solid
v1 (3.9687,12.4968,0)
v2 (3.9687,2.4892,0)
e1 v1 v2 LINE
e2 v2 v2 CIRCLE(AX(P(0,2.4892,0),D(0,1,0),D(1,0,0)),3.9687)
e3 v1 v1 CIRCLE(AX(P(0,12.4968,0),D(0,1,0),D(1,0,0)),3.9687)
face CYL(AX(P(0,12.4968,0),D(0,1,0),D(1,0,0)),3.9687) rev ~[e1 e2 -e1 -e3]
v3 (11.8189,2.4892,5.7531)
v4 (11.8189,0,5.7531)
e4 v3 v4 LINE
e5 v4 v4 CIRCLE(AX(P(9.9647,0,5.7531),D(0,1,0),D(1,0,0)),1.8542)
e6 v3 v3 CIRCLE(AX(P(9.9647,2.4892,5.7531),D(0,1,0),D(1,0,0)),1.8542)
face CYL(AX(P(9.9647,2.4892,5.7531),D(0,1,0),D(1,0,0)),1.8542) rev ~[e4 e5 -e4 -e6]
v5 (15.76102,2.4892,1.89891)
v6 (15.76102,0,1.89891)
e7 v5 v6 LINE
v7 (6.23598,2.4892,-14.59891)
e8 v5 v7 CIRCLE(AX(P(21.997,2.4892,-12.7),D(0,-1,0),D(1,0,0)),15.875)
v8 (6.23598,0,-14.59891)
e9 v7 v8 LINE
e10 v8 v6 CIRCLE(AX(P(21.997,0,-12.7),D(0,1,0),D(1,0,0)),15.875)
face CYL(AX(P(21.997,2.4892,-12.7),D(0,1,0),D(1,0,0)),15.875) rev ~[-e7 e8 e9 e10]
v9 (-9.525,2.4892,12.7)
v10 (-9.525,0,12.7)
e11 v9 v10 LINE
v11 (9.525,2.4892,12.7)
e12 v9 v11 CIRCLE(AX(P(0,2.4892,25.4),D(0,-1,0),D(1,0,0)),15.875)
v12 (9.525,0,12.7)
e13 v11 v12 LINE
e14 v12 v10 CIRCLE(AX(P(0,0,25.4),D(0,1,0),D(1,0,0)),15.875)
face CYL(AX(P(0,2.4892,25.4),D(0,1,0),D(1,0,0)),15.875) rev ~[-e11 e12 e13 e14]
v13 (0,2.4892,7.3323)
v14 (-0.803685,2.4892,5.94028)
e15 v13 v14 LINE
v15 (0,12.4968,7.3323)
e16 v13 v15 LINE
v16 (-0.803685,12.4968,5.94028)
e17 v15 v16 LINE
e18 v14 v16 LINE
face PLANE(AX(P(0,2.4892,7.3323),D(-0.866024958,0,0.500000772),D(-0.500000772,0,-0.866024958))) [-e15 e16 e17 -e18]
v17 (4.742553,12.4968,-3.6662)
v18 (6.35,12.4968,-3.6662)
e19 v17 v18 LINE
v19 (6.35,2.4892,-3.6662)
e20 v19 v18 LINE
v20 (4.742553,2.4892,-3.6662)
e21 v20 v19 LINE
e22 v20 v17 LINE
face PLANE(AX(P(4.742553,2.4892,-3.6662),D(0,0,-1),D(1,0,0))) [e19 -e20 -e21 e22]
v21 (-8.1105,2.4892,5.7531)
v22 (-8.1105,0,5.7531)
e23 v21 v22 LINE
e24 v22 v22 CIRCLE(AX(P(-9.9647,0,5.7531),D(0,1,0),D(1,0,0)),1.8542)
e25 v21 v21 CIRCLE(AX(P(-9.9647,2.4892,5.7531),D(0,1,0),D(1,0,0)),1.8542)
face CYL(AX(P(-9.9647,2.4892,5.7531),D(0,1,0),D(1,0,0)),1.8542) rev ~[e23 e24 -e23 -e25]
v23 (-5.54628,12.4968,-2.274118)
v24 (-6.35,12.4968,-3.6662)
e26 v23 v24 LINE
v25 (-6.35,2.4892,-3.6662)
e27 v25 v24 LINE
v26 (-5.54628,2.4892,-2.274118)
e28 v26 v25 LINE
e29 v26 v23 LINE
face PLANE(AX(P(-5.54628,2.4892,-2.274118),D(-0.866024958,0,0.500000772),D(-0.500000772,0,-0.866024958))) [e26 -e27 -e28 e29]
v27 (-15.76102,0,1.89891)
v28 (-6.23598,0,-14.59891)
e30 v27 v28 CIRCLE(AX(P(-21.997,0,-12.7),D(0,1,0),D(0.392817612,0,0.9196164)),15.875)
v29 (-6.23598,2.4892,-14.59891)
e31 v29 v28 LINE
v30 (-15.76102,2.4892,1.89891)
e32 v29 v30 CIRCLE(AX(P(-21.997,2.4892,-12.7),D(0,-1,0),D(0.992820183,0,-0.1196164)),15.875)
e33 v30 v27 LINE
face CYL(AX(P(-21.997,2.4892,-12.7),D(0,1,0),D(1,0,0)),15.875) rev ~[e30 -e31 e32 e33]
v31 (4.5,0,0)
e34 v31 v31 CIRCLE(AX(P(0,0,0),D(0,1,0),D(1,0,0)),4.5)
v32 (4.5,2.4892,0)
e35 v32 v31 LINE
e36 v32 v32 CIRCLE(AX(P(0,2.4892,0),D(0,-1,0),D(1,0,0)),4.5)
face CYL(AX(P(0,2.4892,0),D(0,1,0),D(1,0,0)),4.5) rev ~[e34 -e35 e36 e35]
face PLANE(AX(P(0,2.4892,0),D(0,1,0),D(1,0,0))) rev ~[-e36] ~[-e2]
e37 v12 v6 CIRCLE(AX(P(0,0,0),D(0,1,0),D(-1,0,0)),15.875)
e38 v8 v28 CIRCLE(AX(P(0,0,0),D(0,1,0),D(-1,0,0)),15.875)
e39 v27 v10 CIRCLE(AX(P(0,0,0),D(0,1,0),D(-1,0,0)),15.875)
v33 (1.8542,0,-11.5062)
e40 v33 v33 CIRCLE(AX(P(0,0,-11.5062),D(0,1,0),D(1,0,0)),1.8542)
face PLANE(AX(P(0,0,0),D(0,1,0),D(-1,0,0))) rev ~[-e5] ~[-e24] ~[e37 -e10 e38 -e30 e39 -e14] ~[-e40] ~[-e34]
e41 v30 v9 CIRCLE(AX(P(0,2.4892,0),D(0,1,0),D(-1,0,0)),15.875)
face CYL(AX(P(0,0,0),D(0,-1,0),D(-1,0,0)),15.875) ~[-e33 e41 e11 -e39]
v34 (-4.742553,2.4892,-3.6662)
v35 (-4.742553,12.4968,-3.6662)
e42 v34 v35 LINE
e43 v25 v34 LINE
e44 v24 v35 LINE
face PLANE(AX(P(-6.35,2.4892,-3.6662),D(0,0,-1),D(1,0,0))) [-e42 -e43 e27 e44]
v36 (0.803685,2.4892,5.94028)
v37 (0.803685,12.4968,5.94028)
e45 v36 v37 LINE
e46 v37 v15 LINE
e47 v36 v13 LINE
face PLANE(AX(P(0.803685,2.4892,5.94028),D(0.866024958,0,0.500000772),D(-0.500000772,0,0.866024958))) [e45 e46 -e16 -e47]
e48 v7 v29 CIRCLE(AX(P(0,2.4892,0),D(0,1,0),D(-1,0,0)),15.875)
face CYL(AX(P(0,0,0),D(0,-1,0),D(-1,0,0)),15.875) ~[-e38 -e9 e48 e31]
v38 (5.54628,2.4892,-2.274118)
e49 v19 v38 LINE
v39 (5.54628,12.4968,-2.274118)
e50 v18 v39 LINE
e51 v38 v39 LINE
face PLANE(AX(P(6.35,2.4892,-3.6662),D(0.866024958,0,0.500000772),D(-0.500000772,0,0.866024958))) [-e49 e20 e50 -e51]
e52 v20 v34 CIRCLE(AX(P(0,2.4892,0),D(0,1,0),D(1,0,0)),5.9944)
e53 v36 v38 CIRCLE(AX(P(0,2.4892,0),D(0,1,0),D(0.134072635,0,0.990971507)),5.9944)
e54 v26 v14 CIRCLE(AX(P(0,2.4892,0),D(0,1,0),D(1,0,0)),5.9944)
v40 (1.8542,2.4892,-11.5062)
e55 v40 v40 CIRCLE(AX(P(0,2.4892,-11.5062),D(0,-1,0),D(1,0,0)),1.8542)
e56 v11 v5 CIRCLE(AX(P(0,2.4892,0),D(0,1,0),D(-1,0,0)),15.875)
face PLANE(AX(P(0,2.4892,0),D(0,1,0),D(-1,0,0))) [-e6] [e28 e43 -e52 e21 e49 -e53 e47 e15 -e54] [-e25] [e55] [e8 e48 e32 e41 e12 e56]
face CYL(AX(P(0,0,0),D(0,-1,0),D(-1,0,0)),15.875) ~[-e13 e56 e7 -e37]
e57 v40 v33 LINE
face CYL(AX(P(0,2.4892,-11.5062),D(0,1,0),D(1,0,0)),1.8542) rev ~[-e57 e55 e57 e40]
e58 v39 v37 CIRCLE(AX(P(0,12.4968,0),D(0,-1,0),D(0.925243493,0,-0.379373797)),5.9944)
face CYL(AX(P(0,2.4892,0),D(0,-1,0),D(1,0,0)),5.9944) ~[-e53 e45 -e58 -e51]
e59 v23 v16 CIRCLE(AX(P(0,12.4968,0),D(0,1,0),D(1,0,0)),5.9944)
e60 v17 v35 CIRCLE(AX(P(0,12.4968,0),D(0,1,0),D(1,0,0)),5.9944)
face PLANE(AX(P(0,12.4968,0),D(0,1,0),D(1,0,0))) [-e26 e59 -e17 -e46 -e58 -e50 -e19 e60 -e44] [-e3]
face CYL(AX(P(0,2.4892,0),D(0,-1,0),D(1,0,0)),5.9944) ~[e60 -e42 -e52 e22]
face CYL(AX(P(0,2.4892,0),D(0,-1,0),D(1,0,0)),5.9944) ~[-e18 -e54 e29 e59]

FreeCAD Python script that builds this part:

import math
import FreeCAD as App
import Part
import Sketcher

V = App.Vector
Q = App.Units.Quantity

doc = App.newDocument("Part")
params = doc.addObject("Spreadsheet::Sheet", "Params")
for row, (alias, value) in enumerate([
    ("sketch1_diameter", "1.25 in"),
    ("pad1_length", "0.098 in"),
    ("sketch2_diameter", "1.25 in"),
    ("sketch3_diameter", "0.146 in"),
    ("sketch4_radius", "0.236 in"),
    ("pad2_length", "0.394 in"),
    ("sketch5_diameter", "0.3125 in"),
], start=1):
    params.set(f"A{row}", alias)
    params.set(f"B{row}", "=" + value)
    params.setAlias(f"B{row}", alias)

body = doc.addObject("PartDesign::Body", "Body")

sketch1 = body.newObject("Sketcher::SketchObject", "Sketch")
sketch1.AttachmentSupport = (doc.getObject("XZ_Plane"), [""])
sketch1.MapMode = "FlatFace"
sketch1.addGeometry(Part.Circle(V(0, 0, 0), V(0, 0, 1), 15.875), False)
sketch1.addConstraint(Sketcher.Constraint("Coincident", 0, 3, -1, 1))
sketch1.addConstraint(Sketcher.Constraint("Diameter", 0, Q("1.25 in")))
sketch1.setExpression("Constraints[1]", "Params.sketch1_diameter")
pad1 = body.newObject("PartDesign::Pad", "Pad")
pad1.Profile = sketch1
pad1.setExpression("Length", "Params.pad1_length")
pad1.Reversed = True

sketch2 = body.newObject("Sketcher::SketchObject", "Sketch001")
sketch2.AttachmentSupport = (doc.getObject("XZ_Plane"), [""])
sketch2.MapMode = "FlatFace"
sketch2.AttachmentOffset = App.Placement(V(0, 0, -0.098 * 25.4), App.Rotation())
sketch2.addGeometry(Part.Circle(V(21.997, -12.7, 0), V(0, 0, 1), 15.875), False)
sketch2.addGeometry(Part.Circle(V(0, 25.4, 0), V(0, 0, 1), 15.875), False)
sketch2.addGeometry(Part.Circle(V(-21.997, -12.7, 0), V(0, 0, 1), 15.875), False)
sketch2.addConstraint(Sketcher.Constraint("Equal", 0, 1))
sketch2.addConstraint(Sketcher.Constraint("Equal", 1, 2))
sketch2.addConstraint(Sketcher.Constraint("Symmetric", 0, 3, 2, 3, -2))
sketch2.addConstraint(Sketcher.Constraint("PointOnObject", 1, 3, -2))
sketch2.addConstraint(Sketcher.Constraint("Diameter", 0, Q("1.25 in")))
sketch2.addConstraint(Sketcher.Constraint("DistanceY", -1, 1, 1, 3, Q("1 in")))
sketch2.addConstraint(Sketcher.Constraint("DistanceY", 0, 3, -1, 1, Q("0.5 in")))
sketch2.addConstraint(Sketcher.Constraint("DistanceX", -1, 1, 0, 3, 21.997))
sketch2.setExpression("Constraints[4]", "Params.sketch2_diameter")
pocket1 = body.newObject("PartDesign::Pocket", "Pocket")
pocket1.Profile = sketch2
pocket1.Type = "ThroughAll"
pocket1.Reversed = True

sketch3 = body.newObject("Sketcher::SketchObject", "Sketch002")
sketch3.AttachmentSupport = (doc.getObject("XZ_Plane"), [""])
sketch3.MapMode = "FlatFace"
sketch3.AttachmentOffset = App.Placement(V(0, 0, -0.098 * 25.4), App.Rotation())
sketch3.addGeometry(Part.Circle(V(0, -11.5062, 0), V(0, 0, 1), 1.8542), False)
sketch3.addGeometry(Part.Circle(V(0, 0, 0), V(0, 0, 1), 4.5), False)
sketch3.addGeometry(Part.Circle(V(-9.9647, 5.7531, 0), V(0, 0, 1), 1.8542), False)
sketch3.addGeometry(Part.Circle(V(9.9647, 5.7531, 0), V(0, 0, 1), 1.8542), False)
sketch3.addConstraint(Sketcher.Constraint("Coincident", 1, 3, -1, 1))
sketch3.addConstraint(Sketcher.Constraint("Equal", 0, 2))
sketch3.addConstraint(Sketcher.Constraint("Equal", 2, 3))
sketch3.addConstraint(Sketcher.Constraint("Symmetric", 2, 3, 3, 3, -2))
sketch3.addConstraint(Sketcher.Constraint("PointOnObject", 0, 3, -2))
sketch3.addConstraint(Sketcher.Constraint("Diameter", 0, Q("0.146 in")))
sketch3.addConstraint(Sketcher.Constraint("Diameter", 1, 9.0))
sketch3.addConstraint(Sketcher.Constraint("DistanceY", 0, 3, -1, 1, Q("0.453 in")))
sketch3.addConstraint(Sketcher.Constraint("DistanceX", 2, 3, -1, 1, Q("0.3923 in")))
sketch3.addConstraint(Sketcher.Constraint("DistanceY", -1, 1, 2, 3, Q("0.2265 in")))
sketch3.setExpression("Constraints[5]", "Params.sketch3_diameter")
pocket2 = body.newObject("PartDesign::Pocket", "Pocket001")
pocket2.Profile = sketch3
pocket2.Type = "ThroughAll"
pocket2.Reversed = True

sketch4 = body.newObject("Sketcher::SketchObject", "Sketch003")
sketch4.AttachmentSupport = (doc.getObject("XZ_Plane"), [""])
sketch4.MapMode = "FlatFace"
sketch4.AttachmentOffset = App.Placement(V(0, 0, -0.098 * 25.4), App.Rotation())
sketch4.addGeometry(Part.ArcOfCircle(Part.Circle(V(0, 0, 0), V(0, 0, 1), 5.9944), math.radians(-22.2949), math.radians(82.295002)), False)
sketch4.addGeometry(Part.LineSegment(V(5.54628, -2.274118, 0), V(6.35, -3.6662, 0)), False)
sketch4.addGeometry(Part.LineSegment(V(6.35, -3.6662, 0), V(4.742553, -3.6662, 0)), False)
sketch4.addGeometry(Part.ArcOfCircle(Part.Circle(V(0, 0, 0), V(0, 0, 1), 5.9944), math.radians(-142.294415), math.radians(-37.705585)), False)
sketch4.addGeometry(Part.LineSegment(V(-4.742553, -3.6662, 0), V(-6.35, -3.6662, 0)), False)
sketch4.addGeometry(Part.LineSegment(V(-6.35, -3.6662, 0), V(-5.54628, -2.274118, 0)), False)
sketch4.addGeometry(Part.ArcOfCircle(Part.Circle(V(0, 0, 0), V(0, 0, 1), 5.9944), math.radians(97.704998), math.radians(202.2949)), False)
sketch4.addGeometry(Part.LineSegment(V(-0.803685, 5.94028, 0), V(0, 7.3323, 0)), False)
sketch4.addGeometry(Part.LineSegment(V(0, 7.3323, 0), V(0.803685, 5.94028, 0)), False)
sketch4.addConstraint(Sketcher.Constraint("Coincident", 0, 1, 1, 1))
sketch4.addConstraint(Sketcher.Constraint("Coincident", 1, 2, 2, 1))
sketch4.addConstraint(Sketcher.Constraint("Coincident", 2, 2, 3, 2))
sketch4.addConstraint(Sketcher.Constraint("Coincident", 3, 1, 4, 1))
sketch4.addConstraint(Sketcher.Constraint("Coincident", 4, 2, 5, 1))
sketch4.addConstraint(Sketcher.Constraint("Coincident", 5, 2, 6, 2))
sketch4.addConstraint(Sketcher.Constraint("Coincident", 6, 1, 7, 1))
sketch4.addConstraint(Sketcher.Constraint("Coincident", 7, 2, 8, 1))
sketch4.addConstraint(Sketcher.Constraint("Coincident", 8, 2, 0, 2))
sketch4.addConstraint(Sketcher.Constraint("Horizontal", 2))
sketch4.addConstraint(Sketcher.Constraint("Horizontal", 4))
sketch4.addConstraint(Sketcher.Constraint("Coincident", 0, 3, -1, 1))
sketch4.addConstraint(Sketcher.Constraint("Coincident", 3, 3, -1, 1))
sketch4.addConstraint(Sketcher.Constraint("Coincident", 6, 3, -1, 1))
sketch4.addConstraint(Sketcher.Constraint("Equal", 0, 3))
sketch4.addConstraint(Sketcher.Constraint("Equal", 3, 6))
sketch4.addConstraint(Sketcher.Constraint("Symmetric", 1, 2, 4, 2, -2))
sketch4.addConstraint(Sketcher.Constraint("PointOnObject", 7, 2, -2))
sketch4.addConstraint(Sketcher.Constraint("Parallel", 5, 7))
sketch4.addConstraint(Sketcher.Constraint("Parallel", 1, 8))
sketch4.addConstraint(Sketcher.Constraint("Horizontal", 0, 1, 5, 2))
sketch4.addConstraint(Sketcher.Constraint("Equal", 5, 7))
sketch4.addConstraint(Sketcher.Constraint("Radius", 0, Q("0.236 in")))
sketch4.addConstraint(Sketcher.Constraint("Angle", 1, Q("-60 deg")))
sketch4.addConstraint(Sketcher.Constraint("DistanceX", -1, 1, 1, 2, Q("0.25 in")))
sketch4.addConstraint(Sketcher.Constraint("DistanceX", 2, 2, 2, 1, 1.6074))
sketch4.setExpression("Constraints[22]", "Params.sketch4_radius")
pad2 = body.newObject("PartDesign::Pad", "Pad001")
pad2.Profile = sketch4
pad2.setExpression("Length", "Params.pad2_length")
pad2.Reversed = True

sketch5 = body.newObject("Sketcher::SketchObject", "Sketch004")
sketch5.AttachmentSupport = (doc.getObject("XZ_Plane"), [""])
sketch5.MapMode = "FlatFace"
sketch5.AttachmentOffset = App.Placement(V(0, 0, -0.492 * 25.4), App.Rotation())
sketch5.addGeometry(Part.Circle(V(0, 0, 0), V(0, 0, 1), 3.9687), False)
sketch5.addConstraint(Sketcher.Constraint("Coincident", 0, 3, -1, 1))
sketch5.addConstraint(Sketcher.Constraint("Diameter", 0, Q("0.3125 in")))
sketch5.setExpression("Constraints[1]", "Params.sketch5_diameter")
pocket3 = body.newObject("PartDesign::Pocket", "Pocket002")
pocket3.Profile = sketch5
pocket3.Type = "ThroughAll"
pocket3.Reversed = True

doc.recompute()
